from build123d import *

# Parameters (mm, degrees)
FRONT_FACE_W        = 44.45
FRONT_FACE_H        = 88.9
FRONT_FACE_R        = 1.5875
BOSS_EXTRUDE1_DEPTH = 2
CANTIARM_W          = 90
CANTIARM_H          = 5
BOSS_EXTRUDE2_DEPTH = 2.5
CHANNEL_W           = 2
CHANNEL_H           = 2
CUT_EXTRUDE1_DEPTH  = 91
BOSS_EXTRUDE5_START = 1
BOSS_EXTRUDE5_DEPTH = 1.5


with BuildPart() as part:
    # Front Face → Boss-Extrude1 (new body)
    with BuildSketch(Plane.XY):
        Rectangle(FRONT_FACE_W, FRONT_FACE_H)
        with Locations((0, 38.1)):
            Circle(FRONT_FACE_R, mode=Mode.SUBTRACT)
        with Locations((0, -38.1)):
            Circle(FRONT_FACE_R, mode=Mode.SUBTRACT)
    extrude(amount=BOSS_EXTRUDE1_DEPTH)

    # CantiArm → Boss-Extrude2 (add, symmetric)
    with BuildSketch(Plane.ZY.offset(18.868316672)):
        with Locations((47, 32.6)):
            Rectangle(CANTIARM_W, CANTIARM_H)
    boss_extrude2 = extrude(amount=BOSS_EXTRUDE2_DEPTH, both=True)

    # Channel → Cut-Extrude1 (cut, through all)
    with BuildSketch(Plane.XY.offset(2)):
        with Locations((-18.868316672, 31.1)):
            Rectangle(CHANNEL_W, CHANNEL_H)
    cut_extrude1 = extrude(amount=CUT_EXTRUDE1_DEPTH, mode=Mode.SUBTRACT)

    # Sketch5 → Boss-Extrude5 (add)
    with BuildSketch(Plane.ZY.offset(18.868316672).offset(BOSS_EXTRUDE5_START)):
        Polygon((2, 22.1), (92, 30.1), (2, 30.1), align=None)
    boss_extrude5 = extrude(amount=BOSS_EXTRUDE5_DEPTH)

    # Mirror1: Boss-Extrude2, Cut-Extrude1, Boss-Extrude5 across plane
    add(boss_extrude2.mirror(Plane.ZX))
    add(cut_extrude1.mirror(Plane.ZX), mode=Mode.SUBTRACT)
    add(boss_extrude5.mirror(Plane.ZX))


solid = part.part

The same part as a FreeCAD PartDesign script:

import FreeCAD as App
import Part
import Sketcher

V = App.Vector

doc = App.newDocument("Part")
body = doc.addObject("PartDesign::Body", "Body")

# Sketch on XY plane
sketch1 = body.newObject("Sketcher::SketchObject", "Sketch")
sketch1.AttachmentSupport = (doc.getObject("XY_Plane"), [""])
sketch1.MapMode = "FlatFace"
sketch1.addGeometry(Part.LineSegment(V(-22.2, 44.5, 0), V(-22.2, -44.5, 0)), False)
sketch1.addGeometry(Part.LineSegment(V(-22.2, -44.5, 0), V(22.2, -44.5, 0)), False)
sketch1.addGeometry(Part.LineSegment(V(22.2, -44.5, 0), V(22.2, 44.5, 0)), False)
sketch1.addGeometry(Part.LineSegment(V(22.2, 44.5, 0), V(-22.2, 44.5, 0)), False)
sketch1.addGeometry(Part.Circle(V(0, -38.1, 0), V(0, 0, 1), 1.6), False)
sketch1.addGeometry(Part.Circle(V(0, 38.1, 0), V(0, 0, 1), 1.6), False)
sketch1.addConstraint(Sketcher.Constraint("Coincident", 0, 2, 1, 1))
sketch1.addConstraint(Sketcher.Constraint("Coincident", 1, 2, 2, 1))
sketch1.addConstraint(Sketcher.Constraint("Coincident", 2, 2, 3, 1))
sketch1.addConstraint(Sketcher.Constraint("Coincident", 3, 2, 0, 1))
sketch1.addConstraint(Sketcher.Constraint("Vertical", 0))
sketch1.addConstraint(Sketcher.Constraint("Horizontal", 1))
sketch1.addConstraint(Sketcher.Constraint("Vertical", 2))
sketch1.addConstraint(Sketcher.Constraint("Horizontal", 3))
sketch1.addConstraint(Sketcher.Constraint("Equal", 4, 5))
sketch1.addConstraint(Sketcher.Constraint("Symmetric", 4, 3, 5, 3, -1, 1))
sketch1.addConstraint(Sketcher.Constraint("Symmetric", 0, 2, 2, 2, -1, 1))
sketch1.addConstraint(Sketcher.Constraint("PointOnObject", 4, 3, -2))
sketch1.addConstraint(Sketcher.Constraint("Diameter", 4, 3.175))
sketch1.addConstraint(Sketcher.Constraint("DistanceY", 0, 2, 0, 1, 88.9))
sketch1.addConstraint(Sketcher.Constraint("DistanceX", 1, 1, 1, 2, 44.45))
sketch1.addConstraint(Sketcher.Constraint("DistanceY", 4, 3, -1, 1, 38.1))
pad1 = body.newObject("PartDesign::Pad", "Pad")
pad1.Profile = sketch1
pad1.Length = 2

# Sketch on YZ plane
sketch2 = body.newObject("Sketcher::SketchObject", "Sketch001")
sketch2.AttachmentSupport = (doc.getObject("YZ_Plane"), [""])
sketch2.MapMode = "FlatFace"
sketch2.AttachmentOffset = App.Placement(V(0, 0, -18.868317), App.Rotation())
sketch2.addGeometry(Part.LineSegment(V(35, 2, 0), V(30, 2, 0)), False)
sketch2.addGeometry(Part.LineSegment(V(30, 2, 0), V(30, 92, 0)), False)
sketch2.addGeometry(Part.LineSegment(V(30, 92, 0), V(35, 92, 0)), False)
sketch2.addGeometry(Part.LineSegment(V(35, 92, 0), V(35, 2, 0)), False)
sketch2.addConstraint(Sketcher.Constraint("Coincident", 0, 2, 1, 1))
sketch2.addConstraint(Sketcher.Constraint("Coincident", 1, 2, 2, 1))
sketch2.addConstraint(Sketcher.Constraint("Coincident", 2, 2, 3, 1))
sketch2.addConstraint(Sketcher.Constraint("Coincident", 3, 2, 0, 1))
sketch2.addConstraint(Sketcher.Constraint("Horizontal", 0))
sketch2.addConstraint(Sketcher.Constraint("Vertical", 1))
sketch2.addConstraint(Sketcher.Constraint("Horizontal", 2))
sketch2.addConstraint(Sketcher.Constraint("Vertical", 3))
sketch2.addConstraint(Sketcher.Constraint("DistanceX", 0, 2, 0, 1, 5.0))
sketch2.addConstraint(Sketcher.Constraint("DistanceY", 1, 1, 1, 2, 90.0))
sketch2.addConstraint(Sketcher.Constraint("DistanceY", -1, 1, 0, 2, 2.0))
sketch2.addConstraint(Sketcher.Constraint("DistanceX", -1, 1, 0, 2, 30.1))
pad2 = body.newObject("PartDesign::Pad", "Pad001")
pad2.Profile = sketch2
pad2.Length = 5
pad2.Midplane = True

# Sketch on XY plane
sketch3 = body.newObject("Sketcher::SketchObject", "Sketch002")
sketch3.AttachmentSupport = (doc.getObject("XY_Plane"), [""])
sketch3.MapMode = "FlatFace"
sketch3.AttachmentOffset = App.Placement(V(0, 0, 2), App.Rotation())
sketch3.addGeometry(Part.LineSegment(V(-19.9, 32.1, 0), V(-19.9, 30.1, 0)), False)
sketch3.addGeometry(Part.LineSegment(V(-19.9, 30.1, 0), V(-17.9, 30.1, 0)), False)
sketch3.addGeometry(Part.LineSegment(V(-17.9, 30.1, 0), V(-17.9, 32.1, 0)), False)
sketch3.addGeometry(Part.LineSegment(V(-17.9, 32.1, 0), V(-19.9, 32.1, 0)), False)
sketch3.addConstraint(Sketcher.Constraint("Coincident", 0, 2, 1, 1))
sketch3.addConstraint(Sketcher.Constraint("Coincident", 1, 2, 2, 1))
sketch3.addConstraint(Sketcher.Constraint("Coincident", 2, 2, 3, 1))
sketch3.addConstraint(Sketcher.Constraint("Coincident", 3, 2, 0, 1))
sketch3.addConstraint(Sketcher.Constraint("Vertical", 0))
sketch3.addConstraint(Sketcher.Constraint("Horizontal", 1))
sketch3.addConstraint(Sketcher.Constraint("Vertical", 2))
sketch3.addConstraint(Sketcher.Constraint("Horizontal", 3))
sketch3.addConstraint(Sketcher.Constraint("Equal", 3, 0))
sketch3.addConstraint(Sketcher.Constraint("DistanceX", 1, 1, 1, 2, 2.0))
sketch3.addConstraint(Sketcher.Constraint("DistanceY", -1, 1, 0, 2, 30.1))
sketch3.addConstraint(Sketcher.Constraint("DistanceX", 0, 2, -1, 1, 19.868317))
pocket1 = body.newObject("PartDesign::Pocket", "Pocket")
pocket1.Profile = sketch3
pocket1.Type = "ThroughAll"
pocket1.Reversed = True

# Sketch on YZ plane
sketch4 = body.newObject("Sketcher::SketchObject", "Sketch003")
sketch4.AttachmentSupport = (doc.getObject("YZ_Plane"), [""])
sketch4.MapMode = "FlatFace"
sketch4.AttachmentOffset = App.Placement(V(0, 0, -19.868317), App.Rotation())
sketch4.addGeometry(Part.LineSegment(V(22, 2, 0), V(30, 92, 0)), False)
sketch4.addGeometry(Part.LineSegment(V(30, 92, 0), V(30, 2, 0)), False)
sketch4.addGeometry(Part.LineSegment(V(30, 2, 0), V(22, 2, 0)), False)
sketch4.addConstraint(Sketcher.Constraint("Coincident", 0, 2, 1, 1))
sketch4.addConstraint(Sketcher.Constraint("Coincident", 1, 2, 2, 1))
sketch4.addConstraint(Sketcher.Constraint("Coincident", 2, 2, 0, 1))
sketch4.addConstraint(Sketcher.Constraint("Vertical", 1))
sketch4.addConstraint(Sketcher.Constraint("Horizontal", 2))
sketch4.addConstraint(Sketcher.Constraint("DistanceX", 2, 2, 2, 1, 8.0))
sketch4.addConstraint(Sketcher.Constraint("DistanceY", 1, 2, 1, 1, 90.0))
sketch4.addConstraint(Sketcher.Constraint("DistanceY", -1, 1, 0, 2, 92.0))
sketch4.addConstraint(Sketcher.Constraint("DistanceX", -1, 1, 0, 2, 30.1))
pad3 = body.newObject("PartDesign::Pad", "Pad002")
pad3.Profile = sketch4
pad3.Length = 1.5
pad3.Reversed = True
doc.recompute()

mirrored = body.newObject("PartDesign::Mirrored", "Mirrored")
mirrored.Originals = [pad2, pocket1, pad3]
mirrored.MirrorPlane = (doc.getObject("XZ_Plane"), [""])
body.Tip = mirrored

doc.recompute()
